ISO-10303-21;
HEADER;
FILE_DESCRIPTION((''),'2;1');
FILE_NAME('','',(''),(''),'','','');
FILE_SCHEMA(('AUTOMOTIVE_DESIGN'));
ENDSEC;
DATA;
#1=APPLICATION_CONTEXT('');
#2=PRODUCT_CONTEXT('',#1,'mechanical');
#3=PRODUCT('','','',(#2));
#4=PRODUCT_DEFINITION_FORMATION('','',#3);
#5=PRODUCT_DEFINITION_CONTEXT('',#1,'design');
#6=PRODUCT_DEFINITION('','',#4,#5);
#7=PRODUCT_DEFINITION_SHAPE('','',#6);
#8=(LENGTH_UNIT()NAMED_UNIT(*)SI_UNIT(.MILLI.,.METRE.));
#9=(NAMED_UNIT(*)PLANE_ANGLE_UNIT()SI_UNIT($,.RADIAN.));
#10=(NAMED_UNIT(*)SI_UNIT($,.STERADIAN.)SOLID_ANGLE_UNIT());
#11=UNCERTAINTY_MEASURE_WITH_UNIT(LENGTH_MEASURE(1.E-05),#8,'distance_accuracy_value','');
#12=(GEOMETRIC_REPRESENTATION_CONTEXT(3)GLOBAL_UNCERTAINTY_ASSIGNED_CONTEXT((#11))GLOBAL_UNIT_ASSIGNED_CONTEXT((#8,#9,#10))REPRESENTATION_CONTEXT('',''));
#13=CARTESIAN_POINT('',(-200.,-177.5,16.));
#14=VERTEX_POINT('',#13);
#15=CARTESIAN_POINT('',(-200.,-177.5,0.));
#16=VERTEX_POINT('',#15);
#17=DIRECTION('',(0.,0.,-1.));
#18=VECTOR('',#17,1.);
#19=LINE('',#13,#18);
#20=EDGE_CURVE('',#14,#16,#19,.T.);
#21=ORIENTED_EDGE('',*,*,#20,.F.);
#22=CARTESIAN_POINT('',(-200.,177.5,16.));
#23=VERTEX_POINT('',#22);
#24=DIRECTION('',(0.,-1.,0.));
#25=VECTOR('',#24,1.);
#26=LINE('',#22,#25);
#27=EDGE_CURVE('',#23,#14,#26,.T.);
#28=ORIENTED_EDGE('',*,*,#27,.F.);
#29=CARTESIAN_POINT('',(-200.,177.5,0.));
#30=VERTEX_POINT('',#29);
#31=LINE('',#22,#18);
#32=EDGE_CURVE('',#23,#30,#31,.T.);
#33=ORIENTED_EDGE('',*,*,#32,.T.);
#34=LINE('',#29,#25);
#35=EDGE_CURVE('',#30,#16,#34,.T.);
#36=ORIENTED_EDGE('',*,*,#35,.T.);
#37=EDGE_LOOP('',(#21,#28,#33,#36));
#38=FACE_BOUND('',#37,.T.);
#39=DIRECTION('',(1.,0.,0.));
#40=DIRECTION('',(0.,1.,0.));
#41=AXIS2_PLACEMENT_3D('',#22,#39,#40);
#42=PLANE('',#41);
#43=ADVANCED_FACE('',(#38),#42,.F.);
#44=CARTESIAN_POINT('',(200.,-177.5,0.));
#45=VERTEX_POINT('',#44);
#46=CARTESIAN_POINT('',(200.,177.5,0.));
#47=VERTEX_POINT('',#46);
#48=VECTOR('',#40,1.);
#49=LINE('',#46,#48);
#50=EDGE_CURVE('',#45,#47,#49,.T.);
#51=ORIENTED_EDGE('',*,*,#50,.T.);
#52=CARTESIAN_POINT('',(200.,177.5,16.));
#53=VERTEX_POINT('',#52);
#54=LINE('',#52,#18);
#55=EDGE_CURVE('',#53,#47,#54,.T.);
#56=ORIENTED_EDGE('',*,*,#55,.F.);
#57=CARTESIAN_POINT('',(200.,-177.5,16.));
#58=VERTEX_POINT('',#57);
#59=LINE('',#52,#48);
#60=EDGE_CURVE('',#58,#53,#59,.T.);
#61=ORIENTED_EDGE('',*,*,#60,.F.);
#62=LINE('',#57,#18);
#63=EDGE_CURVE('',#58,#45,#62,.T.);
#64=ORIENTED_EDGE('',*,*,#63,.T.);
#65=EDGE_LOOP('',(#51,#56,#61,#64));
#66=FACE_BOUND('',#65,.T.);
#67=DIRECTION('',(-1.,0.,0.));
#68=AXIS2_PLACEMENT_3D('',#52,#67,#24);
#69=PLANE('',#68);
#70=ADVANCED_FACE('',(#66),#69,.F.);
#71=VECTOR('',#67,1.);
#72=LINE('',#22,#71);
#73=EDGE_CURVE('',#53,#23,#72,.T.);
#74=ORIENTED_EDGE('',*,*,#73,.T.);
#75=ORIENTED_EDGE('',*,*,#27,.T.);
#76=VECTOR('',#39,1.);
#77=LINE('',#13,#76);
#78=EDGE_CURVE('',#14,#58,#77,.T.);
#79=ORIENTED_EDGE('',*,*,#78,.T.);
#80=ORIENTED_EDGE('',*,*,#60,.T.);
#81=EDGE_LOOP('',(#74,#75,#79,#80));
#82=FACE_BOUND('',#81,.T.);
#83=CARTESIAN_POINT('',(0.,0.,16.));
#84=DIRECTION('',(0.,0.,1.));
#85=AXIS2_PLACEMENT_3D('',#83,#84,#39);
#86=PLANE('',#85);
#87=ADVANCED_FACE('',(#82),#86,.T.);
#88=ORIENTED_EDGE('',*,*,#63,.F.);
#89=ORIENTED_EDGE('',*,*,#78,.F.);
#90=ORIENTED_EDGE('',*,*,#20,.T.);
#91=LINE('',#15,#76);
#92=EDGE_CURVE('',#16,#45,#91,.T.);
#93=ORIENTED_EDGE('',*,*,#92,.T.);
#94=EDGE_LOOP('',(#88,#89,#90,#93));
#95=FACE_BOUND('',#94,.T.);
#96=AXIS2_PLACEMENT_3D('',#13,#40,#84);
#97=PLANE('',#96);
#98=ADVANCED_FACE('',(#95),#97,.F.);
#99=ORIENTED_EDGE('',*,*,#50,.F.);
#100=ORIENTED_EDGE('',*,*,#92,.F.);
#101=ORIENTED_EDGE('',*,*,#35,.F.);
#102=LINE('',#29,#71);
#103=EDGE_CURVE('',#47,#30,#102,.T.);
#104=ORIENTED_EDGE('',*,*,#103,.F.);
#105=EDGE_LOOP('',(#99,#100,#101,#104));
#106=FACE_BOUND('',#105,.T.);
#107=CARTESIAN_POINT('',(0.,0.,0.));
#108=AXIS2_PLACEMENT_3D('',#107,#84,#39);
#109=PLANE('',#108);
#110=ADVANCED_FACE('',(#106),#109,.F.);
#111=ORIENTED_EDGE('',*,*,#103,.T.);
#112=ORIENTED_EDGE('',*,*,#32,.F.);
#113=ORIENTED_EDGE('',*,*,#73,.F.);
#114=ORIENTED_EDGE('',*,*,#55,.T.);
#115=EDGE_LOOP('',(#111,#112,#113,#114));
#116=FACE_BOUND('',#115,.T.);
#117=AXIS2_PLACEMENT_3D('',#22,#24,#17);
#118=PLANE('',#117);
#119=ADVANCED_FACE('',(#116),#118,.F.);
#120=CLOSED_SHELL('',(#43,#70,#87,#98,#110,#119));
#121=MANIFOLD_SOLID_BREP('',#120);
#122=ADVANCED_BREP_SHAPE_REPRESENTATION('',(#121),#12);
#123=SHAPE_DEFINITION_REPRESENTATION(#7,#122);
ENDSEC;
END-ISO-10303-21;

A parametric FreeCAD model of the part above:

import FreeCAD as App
import Part
import Sketcher
Q = App.Units.Quantity


def add_polygon(sketch, points):
    """Adds a closed chain of lines whose ends are joined by coincident constraints."""
    first, n = sketch.GeometryCount, len(points)
    for a, b in zip(points, points[1:] + points[:1]):
        sketch.addGeometry(Part.LineSegment(App.Vector(*a, 0), App.Vector(*b, 0)), False)
    for i in range(n):
        sketch.addConstraint(Sketcher.Constraint("Coincident", first + i, 2, first + (i + 1) % n, 1))

doc = App.newDocument("Part")
body = doc.addObject("PartDesign::Body", "Body")

# Sketch on XY plane
sketch1 = body.newObject("Sketcher::SketchObject", "Sketch")
sketch1.AttachmentSupport = (doc.getObject("XY_Plane"), [""])
sketch1.MapMode = "FlatFace"
add_polygon(sketch1, [(-200, 178), (-200, -178), (200, -178), (200, 178)])  # lines 0-3
sketch1.addConstraint(Sketcher.Constraint("Vertical", 0))
sketch1.addConstraint(Sketcher.Constraint("Horizontal", 1))
sketch1.addConstraint(Sketcher.Constraint("Vertical", 2))
sketch1.addConstraint(Sketcher.Constraint("Horizontal", 3))
sketch1.addConstraint(Sketcher.Constraint("Symmetric", 0, 2, 2, 2, -1, 1))
sketch1.addConstraint(Sketcher.Constraint("DistanceX", 1, 1, 1, 2, Q("400 mm")))
sketch1.addConstraint(Sketcher.Constraint("DistanceY", 0, 2, 0, 1, Q("355 mm")))
pad1 = body.newObject("PartDesign::Pad", "Pad")
pad1.Profile = sketch1
pad1.Length = 16

doc.recompute()
